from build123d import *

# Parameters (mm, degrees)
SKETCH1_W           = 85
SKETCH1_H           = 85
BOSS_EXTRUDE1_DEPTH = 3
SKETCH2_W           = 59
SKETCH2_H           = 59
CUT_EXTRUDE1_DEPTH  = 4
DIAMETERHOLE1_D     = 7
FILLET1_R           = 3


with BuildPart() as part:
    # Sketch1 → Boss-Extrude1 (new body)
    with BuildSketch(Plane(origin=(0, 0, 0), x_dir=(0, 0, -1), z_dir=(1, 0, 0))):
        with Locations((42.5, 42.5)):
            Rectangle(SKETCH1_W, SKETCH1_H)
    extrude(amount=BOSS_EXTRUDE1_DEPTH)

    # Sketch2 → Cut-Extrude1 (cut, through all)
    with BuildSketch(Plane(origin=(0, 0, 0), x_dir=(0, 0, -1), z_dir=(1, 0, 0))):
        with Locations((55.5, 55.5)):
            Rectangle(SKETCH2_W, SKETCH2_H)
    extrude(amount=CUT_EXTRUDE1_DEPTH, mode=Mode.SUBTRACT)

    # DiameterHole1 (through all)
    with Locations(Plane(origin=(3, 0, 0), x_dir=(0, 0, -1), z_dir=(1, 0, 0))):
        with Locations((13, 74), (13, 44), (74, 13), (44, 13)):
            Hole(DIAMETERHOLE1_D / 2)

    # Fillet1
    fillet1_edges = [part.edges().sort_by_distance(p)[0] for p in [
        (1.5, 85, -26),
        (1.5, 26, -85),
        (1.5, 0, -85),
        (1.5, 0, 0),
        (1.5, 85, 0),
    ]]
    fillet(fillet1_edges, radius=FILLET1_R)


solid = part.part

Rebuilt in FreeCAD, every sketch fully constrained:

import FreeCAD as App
import Part
import Sketcher

V = App.Vector


def edges_at(feature, points):
    """Names of the edges that pass closest to the given points."""
    edges = feature.Shape.Edges
    near = lambda p: min(range(len(edges)), key=lambda i: edges[i].distToShape(Part.Vertex(*p))[0])
    return sorted({f"Edge{near(p) + 1}" for p in points})


def add_polygon(sketch, points):
    """Adds a closed chain of lines whose ends are joined by coincident constraints."""
    first, n = sketch.GeometryCount, len(points)
    for a, b in zip(points, points[1:] + points[:1]):
        sketch.addGeometry(Part.LineSegment(App.Vector(*a, 0), App.Vector(*b, 0)), False)
    for i in range(n):
        sketch.addConstraint(Sketcher.Constraint("Coincident", first + i, 2, first + (i + 1) % n, 1))

doc = App.newDocument("Part")
body = doc.addObject("PartDesign::Body", "Body")

# Sketch on YZ plane
sketch1 = body.newObject("Sketcher::SketchObject", "Sketch")
sketch1.AttachmentSupport = (doc.getObject("YZ_Plane"), [""])
sketch1.MapMode = "FlatFace"
add_polygon(sketch1, [(85, 0), (0, 0), (0, -85), (85, -85)])  # lines 0-3
sketch1.addConstraint(Sketcher.Constraint("Horizontal", 0))
sketch1.addConstraint(Sketcher.Constraint("Vertical", 1))
sketch1.addConstraint(Sketcher.Constraint("Horizontal", 2))
sketch1.addConstraint(Sketcher.Constraint("Vertical", 3))
sketch1.addConstraint(Sketcher.Constraint("Coincident", 0, 2, -1, 1))
sketch1.addConstraint(Sketcher.Constraint("Equal", 2, 1))
sketch1.addConstraint(Sketcher.Constraint("DistanceX", 0, 2, 0, 1, 85.0))
pad1 = body.newObject("PartDesign::Pad", "Pad")
pad1.Profile = sketch1
pad1.Length = 3

# Sketch on YZ plane
sketch2 = body.newObject("Sketcher::SketchObject", "Sketch001")
sketch2.AttachmentSupport = (doc.getObject("YZ_Plane"), [""])
sketch2.MapMode = "FlatFace"
add_polygon(sketch2, [(85, -26), (26, -26), (26, -85), (85, -85)])  # lines 0-3
sketch2.addConstraint(Sketcher.Constraint("Horizontal", 0))
sketch2.addConstraint(Sketcher.Constraint("Vertical", 1))
sketch2.addConstraint(Sketcher.Constraint("Horizontal", 2))
sketch2.addConstraint(Sketcher.Constraint("Vertical", 3))
sketch2.addConstraint(Sketcher.Constraint("Equal", 2, 1))
sketch2.addConstraint(Sketcher.Constraint("DistanceX", 0, 2, 0, 1, 59.0))
sketch2.addConstraint(Sketcher.Constraint("DistanceX", -1, 1, 0, 2, 26.0))
sketch2.addConstraint(Sketcher.Constraint("DistanceY", 0, 2, -1, 1, 26.0))
pocket1 = body.newObject("PartDesign::Pocket", "Pocket")
pocket1.Profile = sketch2
pocket1.Type = "ThroughAll"
pocket1.Reversed = True

# Sketch on YZ plane
sketch3 = body.newObject("Sketcher::SketchObject", "Sketch002")
sketch3.AttachmentSupport = (doc.getObject("YZ_Plane"), [""])
sketch3.MapMode = "FlatFace"
sketch3.AttachmentOffset = App.Placement(V(0, 0, 3), App.Rotation())
sketch3.addGeometry(Part.Circle(V(74, -13, 0), V(0, 0, 1), 3.5), False)
sketch3.addGeometry(Part.Circle(V(44, -13, 0), V(0, 0, 1), 3.5), False)
sketch3.addGeometry(Part.Circle(V(13, -74, 0), V(0, 0, 1), 3.5), False)
sketch3.addGeometry(Part.Circle(V(13, -44, 0), V(0, 0, 1), 3.5), False)
sketch3.addConstraint(Sketcher.Constraint("Equal", 0, 1))
sketch3.addConstraint(Sketcher.Constraint("Equal", 1, 2))
sketch3.addConstraint(Sketcher.Constraint("Equal", 2, 3))
sketch3.addConstraint(Sketcher.Constraint("Horizontal", 0, 3, 1, 3))
sketch3.addConstraint(Sketcher.Constraint("Vertical", 2, 3, 3, 3))
sketch3.addConstraint(Sketcher.Constraint("Diameter", 0, 7.0))
sketch3.addConstraint(Sketcher.Constraint("DistanceX", -1, 1, 0, 3, 74.0))
sketch3.addConstraint(Sketcher.Constraint("DistanceY", 0, 3, -1, 1, 13.0))
sketch3.addConstraint(Sketcher.Constraint("DistanceX", -1, 1, 1, 3, 44.0))
sketch3.addConstraint(Sketcher.Constraint("DistanceX", -1, 1, 2, 3, 13.0))
sketch3.addConstraint(Sketcher.Constraint("DistanceY", 2, 3, -1, 1, 74.0))
sketch3.addConstraint(Sketcher.Constraint("DistanceY", 3, 3, -1, 1, 44.0))
doc.recompute()
hole = body.newObject("PartDesign::Hole", "Hole")
hole.Profile = sketch3
hole.ThreadType = "None"
hole.Diameter = 7
hole.DepthType = "ThroughAll"
doc.recompute()

fillet = body.newObject("PartDesign::Fillet", "Fillet")
fillet.Base = (hole, edges_at(hole, [
    (1.5, 85, -26),
    (1.5, 26, -85),
    (1.5, 0, -85),
    (1.5, 0, 0),
    (1.5, 85, 0),
]))
fillet.Radius = 3

doc.recompute()
